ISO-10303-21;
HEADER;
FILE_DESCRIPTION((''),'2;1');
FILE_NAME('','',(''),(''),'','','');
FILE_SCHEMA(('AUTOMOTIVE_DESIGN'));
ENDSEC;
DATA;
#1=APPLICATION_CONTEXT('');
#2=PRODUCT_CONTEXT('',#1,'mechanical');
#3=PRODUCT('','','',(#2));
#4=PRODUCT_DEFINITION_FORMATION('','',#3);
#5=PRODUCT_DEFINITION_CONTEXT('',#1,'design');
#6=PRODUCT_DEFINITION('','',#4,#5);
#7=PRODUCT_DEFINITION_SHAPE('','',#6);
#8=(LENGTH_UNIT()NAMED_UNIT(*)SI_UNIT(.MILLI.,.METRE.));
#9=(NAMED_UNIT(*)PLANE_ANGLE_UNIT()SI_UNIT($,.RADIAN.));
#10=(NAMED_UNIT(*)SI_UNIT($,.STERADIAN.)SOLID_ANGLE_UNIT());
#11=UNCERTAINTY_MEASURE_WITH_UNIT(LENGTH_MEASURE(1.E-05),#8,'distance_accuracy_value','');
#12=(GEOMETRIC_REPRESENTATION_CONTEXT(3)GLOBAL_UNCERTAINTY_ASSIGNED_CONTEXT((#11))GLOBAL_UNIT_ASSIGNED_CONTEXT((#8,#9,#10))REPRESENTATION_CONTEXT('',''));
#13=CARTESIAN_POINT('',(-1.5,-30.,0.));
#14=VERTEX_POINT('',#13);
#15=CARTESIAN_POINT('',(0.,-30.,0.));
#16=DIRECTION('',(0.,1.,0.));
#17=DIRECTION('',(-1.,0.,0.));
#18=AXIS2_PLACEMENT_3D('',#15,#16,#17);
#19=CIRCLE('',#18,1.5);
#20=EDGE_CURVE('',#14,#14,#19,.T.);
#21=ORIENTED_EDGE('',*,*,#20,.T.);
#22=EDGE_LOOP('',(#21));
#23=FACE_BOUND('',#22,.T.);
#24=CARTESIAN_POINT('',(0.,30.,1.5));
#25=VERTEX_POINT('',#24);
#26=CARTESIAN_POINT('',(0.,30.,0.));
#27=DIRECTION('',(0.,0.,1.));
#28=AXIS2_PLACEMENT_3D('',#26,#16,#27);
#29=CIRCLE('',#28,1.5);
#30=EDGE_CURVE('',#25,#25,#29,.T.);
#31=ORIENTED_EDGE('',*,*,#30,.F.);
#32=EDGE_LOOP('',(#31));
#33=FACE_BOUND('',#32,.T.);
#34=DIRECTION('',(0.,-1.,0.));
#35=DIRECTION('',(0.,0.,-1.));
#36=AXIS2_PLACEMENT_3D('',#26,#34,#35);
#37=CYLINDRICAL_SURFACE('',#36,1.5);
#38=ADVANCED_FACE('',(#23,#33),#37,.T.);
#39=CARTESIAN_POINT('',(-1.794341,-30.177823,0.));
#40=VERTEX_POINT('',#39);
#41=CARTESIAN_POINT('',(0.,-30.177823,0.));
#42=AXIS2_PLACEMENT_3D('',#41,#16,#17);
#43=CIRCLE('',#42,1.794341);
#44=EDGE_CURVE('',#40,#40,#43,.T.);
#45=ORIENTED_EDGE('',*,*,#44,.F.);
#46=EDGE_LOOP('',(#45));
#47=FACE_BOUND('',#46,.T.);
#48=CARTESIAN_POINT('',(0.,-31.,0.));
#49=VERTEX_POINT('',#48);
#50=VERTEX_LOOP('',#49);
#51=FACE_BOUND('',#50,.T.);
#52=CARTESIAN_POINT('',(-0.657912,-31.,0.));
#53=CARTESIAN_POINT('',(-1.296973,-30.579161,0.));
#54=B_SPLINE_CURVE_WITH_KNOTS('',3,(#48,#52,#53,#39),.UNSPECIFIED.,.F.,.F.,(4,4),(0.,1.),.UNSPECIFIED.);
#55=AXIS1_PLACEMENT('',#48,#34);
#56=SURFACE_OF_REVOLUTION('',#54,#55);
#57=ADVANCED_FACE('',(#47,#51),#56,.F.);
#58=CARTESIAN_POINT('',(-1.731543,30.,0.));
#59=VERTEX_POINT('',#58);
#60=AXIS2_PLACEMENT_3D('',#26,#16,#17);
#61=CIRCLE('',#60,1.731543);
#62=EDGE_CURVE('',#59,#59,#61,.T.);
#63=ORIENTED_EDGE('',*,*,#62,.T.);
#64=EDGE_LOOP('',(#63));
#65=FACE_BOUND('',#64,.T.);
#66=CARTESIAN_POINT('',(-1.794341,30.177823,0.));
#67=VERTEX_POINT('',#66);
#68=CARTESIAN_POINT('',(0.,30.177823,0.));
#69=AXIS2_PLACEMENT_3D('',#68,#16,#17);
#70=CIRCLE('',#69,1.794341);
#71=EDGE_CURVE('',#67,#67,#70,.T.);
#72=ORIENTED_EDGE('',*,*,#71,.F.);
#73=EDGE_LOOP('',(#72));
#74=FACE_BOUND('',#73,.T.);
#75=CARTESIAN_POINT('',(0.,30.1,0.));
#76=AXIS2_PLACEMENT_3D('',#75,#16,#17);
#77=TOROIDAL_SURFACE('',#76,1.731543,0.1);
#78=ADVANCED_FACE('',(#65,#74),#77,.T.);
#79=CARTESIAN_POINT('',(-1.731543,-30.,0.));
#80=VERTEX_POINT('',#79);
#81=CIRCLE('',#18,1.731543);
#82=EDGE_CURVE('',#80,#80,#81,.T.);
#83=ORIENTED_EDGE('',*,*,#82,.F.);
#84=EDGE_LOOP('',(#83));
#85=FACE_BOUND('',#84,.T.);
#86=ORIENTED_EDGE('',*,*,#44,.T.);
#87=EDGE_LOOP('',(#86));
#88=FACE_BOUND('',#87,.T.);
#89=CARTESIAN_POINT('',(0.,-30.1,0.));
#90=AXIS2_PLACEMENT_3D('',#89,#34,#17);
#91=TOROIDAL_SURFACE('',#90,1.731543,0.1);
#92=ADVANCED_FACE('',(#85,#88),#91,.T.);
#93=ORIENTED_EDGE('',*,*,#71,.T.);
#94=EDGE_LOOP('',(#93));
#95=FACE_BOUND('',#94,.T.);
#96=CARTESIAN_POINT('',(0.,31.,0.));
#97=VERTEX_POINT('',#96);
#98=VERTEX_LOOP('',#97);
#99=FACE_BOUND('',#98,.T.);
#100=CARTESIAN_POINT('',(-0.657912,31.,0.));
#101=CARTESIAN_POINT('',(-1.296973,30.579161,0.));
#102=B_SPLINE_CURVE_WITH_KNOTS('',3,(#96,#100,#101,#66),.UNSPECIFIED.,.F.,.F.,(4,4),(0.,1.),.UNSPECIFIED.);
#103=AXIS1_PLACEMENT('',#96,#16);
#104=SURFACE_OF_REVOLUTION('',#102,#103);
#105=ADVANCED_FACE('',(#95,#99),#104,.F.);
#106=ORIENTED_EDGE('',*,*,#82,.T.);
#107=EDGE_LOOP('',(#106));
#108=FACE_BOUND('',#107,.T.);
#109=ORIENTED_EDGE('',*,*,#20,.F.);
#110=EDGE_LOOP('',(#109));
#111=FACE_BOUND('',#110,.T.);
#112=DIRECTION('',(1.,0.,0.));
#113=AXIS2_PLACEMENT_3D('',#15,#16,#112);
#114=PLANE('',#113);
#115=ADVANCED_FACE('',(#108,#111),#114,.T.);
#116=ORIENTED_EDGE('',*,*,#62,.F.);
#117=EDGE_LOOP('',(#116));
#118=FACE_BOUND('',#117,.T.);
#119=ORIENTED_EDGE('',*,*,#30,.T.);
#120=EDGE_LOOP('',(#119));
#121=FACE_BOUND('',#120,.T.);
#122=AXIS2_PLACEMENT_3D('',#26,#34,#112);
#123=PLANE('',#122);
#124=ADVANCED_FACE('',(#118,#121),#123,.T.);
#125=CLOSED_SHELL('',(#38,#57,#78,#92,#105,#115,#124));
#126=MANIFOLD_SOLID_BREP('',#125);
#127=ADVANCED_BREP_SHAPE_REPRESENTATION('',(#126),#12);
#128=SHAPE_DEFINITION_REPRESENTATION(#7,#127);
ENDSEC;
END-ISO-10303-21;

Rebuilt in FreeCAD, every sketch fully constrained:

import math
import FreeCAD as App
import Part
import Sketcher
from FreeCAD import Vector
Q = App.Units.Quantity

doc = App.newDocument("Part")
body = doc.addObject("PartDesign::Body", "Body")

sketch1 = doc.addObject("Sketcher::SketchObject", "Sketch")
body.addObject(sketch1)
sketch1.AttachmentSupport = (doc.XZ_Plane, [""])
sketch1.MapMode = "FlatFace"
sketch1.addGeometry(Part.Circle(Vector(0, 0, 0), Vector(0, 0, 1), 1.5), False)
sketch1.addConstraint(Sketcher.Constraint("Coincident", 0, 3, -1, 1))
sketch1.addConstraint(Sketcher.Constraint("Diameter", 0, Q("3 mm")))
pad1 = doc.addObject("PartDesign::Pad", "Pad")
body.addObject(pad1)
pad1.Profile = sketch1
pad1.Length = 60
pad1.Midplane = True

sketch2 = doc.addObject("Sketcher::SketchObject", "Sketch001")
body.addObject(sketch2)
sketch2.AttachmentSupport = (doc.XY_Plane, [""])
sketch2.MapMode = "FlatFace"
sketch2.addGeometry(Part.LineSegment(Vector(-1.731543, 30, 0), Vector(0, 30, 0)), False)
sketch2.addGeometry(Part.LineSegment(Vector(0, 30, 0), Vector(0, 31, 0)), False)
sketch2.addGeometry(Part.BSplineCurve([Vector(-1.794341, 30.177823, 0), Vector(-1.296973, 30.579161, 0), Vector(-0.657912, 31, 0), Vector(0, 31, 0)], [4, 4], [0, 1], False, 3, [1, 1, 1, 1], False), False)
sketch2.addGeometry(Part.ArcOfCircle(Part.Circle(Vector(-1.731543, 30.1, 0), Vector(0, 0, 1), 0.1), math.radians(128.90083), math.radians(270)), False)
sketch2.addConstraint(Sketcher.Constraint("Block", 2))
sketch2.addConstraint(Sketcher.Constraint("Coincident", 0, 2, 1, 1))
sketch2.addConstraint(Sketcher.Constraint("Coincident", 1, 2, 2, 2))
sketch2.addConstraint(Sketcher.Constraint("Coincident", 2, 1, 3, 1))
sketch2.addConstraint(Sketcher.Constraint("Tangent", 3, 2, 0, 1))
sketch2.addConstraint(Sketcher.Constraint("Horizontal", 0))
sketch2.addConstraint(Sketcher.Constraint("Vertical", 1))
sketch2.addConstraint(Sketcher.Constraint("Radius", 3, Q("0.1 mm")))
sketch2.addConstraint(Sketcher.Constraint("DistanceY", 1, 1, 1, 2, Q("1 mm")))
revolution = doc.addObject("PartDesign::Revolution", "Revolution")
body.addObject(revolution)
revolution.Profile = sketch2
revolution.ReferenceAxis = (sketch2, ["V_Axis"])
revolution.Angle = 360
doc.recompute()

mirrored = doc.addObject("PartDesign::Mirrored", "Mirrored")
body.addObject(mirrored)
mirrored.Originals = [revolution]
mirrored.MirrorPlane = (doc.XZ_Plane, [""])
body.Tip = mirrored

doc.recompute()
